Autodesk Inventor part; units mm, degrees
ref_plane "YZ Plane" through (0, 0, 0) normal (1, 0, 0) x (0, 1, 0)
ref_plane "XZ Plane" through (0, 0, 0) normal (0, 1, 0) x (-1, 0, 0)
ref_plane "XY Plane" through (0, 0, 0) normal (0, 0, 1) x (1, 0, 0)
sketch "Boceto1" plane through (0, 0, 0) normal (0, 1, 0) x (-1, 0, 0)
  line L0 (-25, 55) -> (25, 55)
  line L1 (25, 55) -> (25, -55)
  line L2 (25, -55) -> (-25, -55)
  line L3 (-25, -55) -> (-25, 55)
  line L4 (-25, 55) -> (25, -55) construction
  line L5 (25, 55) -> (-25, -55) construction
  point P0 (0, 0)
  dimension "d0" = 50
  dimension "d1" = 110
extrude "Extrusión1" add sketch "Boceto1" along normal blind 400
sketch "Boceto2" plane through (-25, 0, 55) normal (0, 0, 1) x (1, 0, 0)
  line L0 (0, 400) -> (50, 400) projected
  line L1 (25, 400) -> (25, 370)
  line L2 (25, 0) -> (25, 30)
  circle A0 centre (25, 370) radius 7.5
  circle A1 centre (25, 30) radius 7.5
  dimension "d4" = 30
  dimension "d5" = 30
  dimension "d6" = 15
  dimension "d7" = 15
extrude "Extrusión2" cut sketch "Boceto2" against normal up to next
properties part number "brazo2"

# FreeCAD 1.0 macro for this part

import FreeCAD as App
import Part
import Sketcher

V = App.Vector

doc = App.newDocument("Part")
body = doc.addObject("PartDesign::Body", "Body")

# Sketch on XZ plane
sketch1 = body.newObject("Sketcher::SketchObject", "Sketch")
sketch1.AttachmentSupport = (doc.getObject("XZ_Plane"), [""])
sketch1.MapMode = "FlatFace"
sketch1.addGeometry([
    Part.LineSegment(V(-25, 55, 0), V(25, 55, 0)),
    Part.LineSegment(V(25, 55, 0), V(25, -55, 0)),
    Part.LineSegment(V(25, -55, 0), V(-25, -55, 0)),
    Part.LineSegment(V(-25, -55, 0), V(-25, 55, 0)),
], False)
sketch1.addConstraint([
    Sketcher.Constraint("Coincident", 0, 2, 1, 1),
    Sketcher.Constraint("Coincident", 1, 2, 2, 1),
    Sketcher.Constraint("Coincident", 2, 2, 3, 1),
    Sketcher.Constraint("Coincident", 3, 2, 0, 1),
    Sketcher.Constraint("Horizontal", 0),
    Sketcher.Constraint("Vertical", 1),
    Sketcher.Constraint("Horizontal", 2),
    Sketcher.Constraint("Vertical", 3),
    Sketcher.Constraint("Symmetric", 0, 2, 2, 2, -1, 1),
    Sketcher.Constraint("DistanceX", 0, 1, 0, 2, 50.0),
    Sketcher.Constraint("DistanceY", 1, 2, 1, 1, 110.0),
])
pad1 = body.newObject("PartDesign::Pad", "Pad")
pad1.Profile = sketch1
pad1.Length = 400
pad1.Reversed = True

# Sketch on XY plane
sketch2 = body.newObject("Sketcher::SketchObject", "Sketch001")
sketch2.AttachmentSupport = (doc.getObject("XY_Plane"), [""])
sketch2.MapMode = "FlatFace"
sketch2.AttachmentOffset = App.Placement(V(0, 0, 55), App.Rotation())
sketch2.addGeometry([
    Part.Circle(V(0, 370, 0), V(0, 0, 1), 8),
    Part.Circle(V(0, 30, 0), V(0, 0, 1), 8),
], False)
sketch2.addConstraint([
    Sketcher.Constraint("Equal", 0, 1),
    Sketcher.Constraint("PointOnObject", 0, 3, -2),
    Sketcher.Constraint("PointOnObject", 1, 3, -2),
    Sketcher.Constraint("Diameter", 0, 15.0),
    Sketcher.Constraint("DistanceY", -1, 1, 1, 3, 30.0),
    Sketcher.Constraint("DistanceY", -1, 1, 0, 3, 370.0),
])
pocket1 = body.newObject("PartDesign::Pocket", "Pocket")
pocket1.Profile = sketch2
pocket1.Type = "UpToFirst"

doc.recompute()
